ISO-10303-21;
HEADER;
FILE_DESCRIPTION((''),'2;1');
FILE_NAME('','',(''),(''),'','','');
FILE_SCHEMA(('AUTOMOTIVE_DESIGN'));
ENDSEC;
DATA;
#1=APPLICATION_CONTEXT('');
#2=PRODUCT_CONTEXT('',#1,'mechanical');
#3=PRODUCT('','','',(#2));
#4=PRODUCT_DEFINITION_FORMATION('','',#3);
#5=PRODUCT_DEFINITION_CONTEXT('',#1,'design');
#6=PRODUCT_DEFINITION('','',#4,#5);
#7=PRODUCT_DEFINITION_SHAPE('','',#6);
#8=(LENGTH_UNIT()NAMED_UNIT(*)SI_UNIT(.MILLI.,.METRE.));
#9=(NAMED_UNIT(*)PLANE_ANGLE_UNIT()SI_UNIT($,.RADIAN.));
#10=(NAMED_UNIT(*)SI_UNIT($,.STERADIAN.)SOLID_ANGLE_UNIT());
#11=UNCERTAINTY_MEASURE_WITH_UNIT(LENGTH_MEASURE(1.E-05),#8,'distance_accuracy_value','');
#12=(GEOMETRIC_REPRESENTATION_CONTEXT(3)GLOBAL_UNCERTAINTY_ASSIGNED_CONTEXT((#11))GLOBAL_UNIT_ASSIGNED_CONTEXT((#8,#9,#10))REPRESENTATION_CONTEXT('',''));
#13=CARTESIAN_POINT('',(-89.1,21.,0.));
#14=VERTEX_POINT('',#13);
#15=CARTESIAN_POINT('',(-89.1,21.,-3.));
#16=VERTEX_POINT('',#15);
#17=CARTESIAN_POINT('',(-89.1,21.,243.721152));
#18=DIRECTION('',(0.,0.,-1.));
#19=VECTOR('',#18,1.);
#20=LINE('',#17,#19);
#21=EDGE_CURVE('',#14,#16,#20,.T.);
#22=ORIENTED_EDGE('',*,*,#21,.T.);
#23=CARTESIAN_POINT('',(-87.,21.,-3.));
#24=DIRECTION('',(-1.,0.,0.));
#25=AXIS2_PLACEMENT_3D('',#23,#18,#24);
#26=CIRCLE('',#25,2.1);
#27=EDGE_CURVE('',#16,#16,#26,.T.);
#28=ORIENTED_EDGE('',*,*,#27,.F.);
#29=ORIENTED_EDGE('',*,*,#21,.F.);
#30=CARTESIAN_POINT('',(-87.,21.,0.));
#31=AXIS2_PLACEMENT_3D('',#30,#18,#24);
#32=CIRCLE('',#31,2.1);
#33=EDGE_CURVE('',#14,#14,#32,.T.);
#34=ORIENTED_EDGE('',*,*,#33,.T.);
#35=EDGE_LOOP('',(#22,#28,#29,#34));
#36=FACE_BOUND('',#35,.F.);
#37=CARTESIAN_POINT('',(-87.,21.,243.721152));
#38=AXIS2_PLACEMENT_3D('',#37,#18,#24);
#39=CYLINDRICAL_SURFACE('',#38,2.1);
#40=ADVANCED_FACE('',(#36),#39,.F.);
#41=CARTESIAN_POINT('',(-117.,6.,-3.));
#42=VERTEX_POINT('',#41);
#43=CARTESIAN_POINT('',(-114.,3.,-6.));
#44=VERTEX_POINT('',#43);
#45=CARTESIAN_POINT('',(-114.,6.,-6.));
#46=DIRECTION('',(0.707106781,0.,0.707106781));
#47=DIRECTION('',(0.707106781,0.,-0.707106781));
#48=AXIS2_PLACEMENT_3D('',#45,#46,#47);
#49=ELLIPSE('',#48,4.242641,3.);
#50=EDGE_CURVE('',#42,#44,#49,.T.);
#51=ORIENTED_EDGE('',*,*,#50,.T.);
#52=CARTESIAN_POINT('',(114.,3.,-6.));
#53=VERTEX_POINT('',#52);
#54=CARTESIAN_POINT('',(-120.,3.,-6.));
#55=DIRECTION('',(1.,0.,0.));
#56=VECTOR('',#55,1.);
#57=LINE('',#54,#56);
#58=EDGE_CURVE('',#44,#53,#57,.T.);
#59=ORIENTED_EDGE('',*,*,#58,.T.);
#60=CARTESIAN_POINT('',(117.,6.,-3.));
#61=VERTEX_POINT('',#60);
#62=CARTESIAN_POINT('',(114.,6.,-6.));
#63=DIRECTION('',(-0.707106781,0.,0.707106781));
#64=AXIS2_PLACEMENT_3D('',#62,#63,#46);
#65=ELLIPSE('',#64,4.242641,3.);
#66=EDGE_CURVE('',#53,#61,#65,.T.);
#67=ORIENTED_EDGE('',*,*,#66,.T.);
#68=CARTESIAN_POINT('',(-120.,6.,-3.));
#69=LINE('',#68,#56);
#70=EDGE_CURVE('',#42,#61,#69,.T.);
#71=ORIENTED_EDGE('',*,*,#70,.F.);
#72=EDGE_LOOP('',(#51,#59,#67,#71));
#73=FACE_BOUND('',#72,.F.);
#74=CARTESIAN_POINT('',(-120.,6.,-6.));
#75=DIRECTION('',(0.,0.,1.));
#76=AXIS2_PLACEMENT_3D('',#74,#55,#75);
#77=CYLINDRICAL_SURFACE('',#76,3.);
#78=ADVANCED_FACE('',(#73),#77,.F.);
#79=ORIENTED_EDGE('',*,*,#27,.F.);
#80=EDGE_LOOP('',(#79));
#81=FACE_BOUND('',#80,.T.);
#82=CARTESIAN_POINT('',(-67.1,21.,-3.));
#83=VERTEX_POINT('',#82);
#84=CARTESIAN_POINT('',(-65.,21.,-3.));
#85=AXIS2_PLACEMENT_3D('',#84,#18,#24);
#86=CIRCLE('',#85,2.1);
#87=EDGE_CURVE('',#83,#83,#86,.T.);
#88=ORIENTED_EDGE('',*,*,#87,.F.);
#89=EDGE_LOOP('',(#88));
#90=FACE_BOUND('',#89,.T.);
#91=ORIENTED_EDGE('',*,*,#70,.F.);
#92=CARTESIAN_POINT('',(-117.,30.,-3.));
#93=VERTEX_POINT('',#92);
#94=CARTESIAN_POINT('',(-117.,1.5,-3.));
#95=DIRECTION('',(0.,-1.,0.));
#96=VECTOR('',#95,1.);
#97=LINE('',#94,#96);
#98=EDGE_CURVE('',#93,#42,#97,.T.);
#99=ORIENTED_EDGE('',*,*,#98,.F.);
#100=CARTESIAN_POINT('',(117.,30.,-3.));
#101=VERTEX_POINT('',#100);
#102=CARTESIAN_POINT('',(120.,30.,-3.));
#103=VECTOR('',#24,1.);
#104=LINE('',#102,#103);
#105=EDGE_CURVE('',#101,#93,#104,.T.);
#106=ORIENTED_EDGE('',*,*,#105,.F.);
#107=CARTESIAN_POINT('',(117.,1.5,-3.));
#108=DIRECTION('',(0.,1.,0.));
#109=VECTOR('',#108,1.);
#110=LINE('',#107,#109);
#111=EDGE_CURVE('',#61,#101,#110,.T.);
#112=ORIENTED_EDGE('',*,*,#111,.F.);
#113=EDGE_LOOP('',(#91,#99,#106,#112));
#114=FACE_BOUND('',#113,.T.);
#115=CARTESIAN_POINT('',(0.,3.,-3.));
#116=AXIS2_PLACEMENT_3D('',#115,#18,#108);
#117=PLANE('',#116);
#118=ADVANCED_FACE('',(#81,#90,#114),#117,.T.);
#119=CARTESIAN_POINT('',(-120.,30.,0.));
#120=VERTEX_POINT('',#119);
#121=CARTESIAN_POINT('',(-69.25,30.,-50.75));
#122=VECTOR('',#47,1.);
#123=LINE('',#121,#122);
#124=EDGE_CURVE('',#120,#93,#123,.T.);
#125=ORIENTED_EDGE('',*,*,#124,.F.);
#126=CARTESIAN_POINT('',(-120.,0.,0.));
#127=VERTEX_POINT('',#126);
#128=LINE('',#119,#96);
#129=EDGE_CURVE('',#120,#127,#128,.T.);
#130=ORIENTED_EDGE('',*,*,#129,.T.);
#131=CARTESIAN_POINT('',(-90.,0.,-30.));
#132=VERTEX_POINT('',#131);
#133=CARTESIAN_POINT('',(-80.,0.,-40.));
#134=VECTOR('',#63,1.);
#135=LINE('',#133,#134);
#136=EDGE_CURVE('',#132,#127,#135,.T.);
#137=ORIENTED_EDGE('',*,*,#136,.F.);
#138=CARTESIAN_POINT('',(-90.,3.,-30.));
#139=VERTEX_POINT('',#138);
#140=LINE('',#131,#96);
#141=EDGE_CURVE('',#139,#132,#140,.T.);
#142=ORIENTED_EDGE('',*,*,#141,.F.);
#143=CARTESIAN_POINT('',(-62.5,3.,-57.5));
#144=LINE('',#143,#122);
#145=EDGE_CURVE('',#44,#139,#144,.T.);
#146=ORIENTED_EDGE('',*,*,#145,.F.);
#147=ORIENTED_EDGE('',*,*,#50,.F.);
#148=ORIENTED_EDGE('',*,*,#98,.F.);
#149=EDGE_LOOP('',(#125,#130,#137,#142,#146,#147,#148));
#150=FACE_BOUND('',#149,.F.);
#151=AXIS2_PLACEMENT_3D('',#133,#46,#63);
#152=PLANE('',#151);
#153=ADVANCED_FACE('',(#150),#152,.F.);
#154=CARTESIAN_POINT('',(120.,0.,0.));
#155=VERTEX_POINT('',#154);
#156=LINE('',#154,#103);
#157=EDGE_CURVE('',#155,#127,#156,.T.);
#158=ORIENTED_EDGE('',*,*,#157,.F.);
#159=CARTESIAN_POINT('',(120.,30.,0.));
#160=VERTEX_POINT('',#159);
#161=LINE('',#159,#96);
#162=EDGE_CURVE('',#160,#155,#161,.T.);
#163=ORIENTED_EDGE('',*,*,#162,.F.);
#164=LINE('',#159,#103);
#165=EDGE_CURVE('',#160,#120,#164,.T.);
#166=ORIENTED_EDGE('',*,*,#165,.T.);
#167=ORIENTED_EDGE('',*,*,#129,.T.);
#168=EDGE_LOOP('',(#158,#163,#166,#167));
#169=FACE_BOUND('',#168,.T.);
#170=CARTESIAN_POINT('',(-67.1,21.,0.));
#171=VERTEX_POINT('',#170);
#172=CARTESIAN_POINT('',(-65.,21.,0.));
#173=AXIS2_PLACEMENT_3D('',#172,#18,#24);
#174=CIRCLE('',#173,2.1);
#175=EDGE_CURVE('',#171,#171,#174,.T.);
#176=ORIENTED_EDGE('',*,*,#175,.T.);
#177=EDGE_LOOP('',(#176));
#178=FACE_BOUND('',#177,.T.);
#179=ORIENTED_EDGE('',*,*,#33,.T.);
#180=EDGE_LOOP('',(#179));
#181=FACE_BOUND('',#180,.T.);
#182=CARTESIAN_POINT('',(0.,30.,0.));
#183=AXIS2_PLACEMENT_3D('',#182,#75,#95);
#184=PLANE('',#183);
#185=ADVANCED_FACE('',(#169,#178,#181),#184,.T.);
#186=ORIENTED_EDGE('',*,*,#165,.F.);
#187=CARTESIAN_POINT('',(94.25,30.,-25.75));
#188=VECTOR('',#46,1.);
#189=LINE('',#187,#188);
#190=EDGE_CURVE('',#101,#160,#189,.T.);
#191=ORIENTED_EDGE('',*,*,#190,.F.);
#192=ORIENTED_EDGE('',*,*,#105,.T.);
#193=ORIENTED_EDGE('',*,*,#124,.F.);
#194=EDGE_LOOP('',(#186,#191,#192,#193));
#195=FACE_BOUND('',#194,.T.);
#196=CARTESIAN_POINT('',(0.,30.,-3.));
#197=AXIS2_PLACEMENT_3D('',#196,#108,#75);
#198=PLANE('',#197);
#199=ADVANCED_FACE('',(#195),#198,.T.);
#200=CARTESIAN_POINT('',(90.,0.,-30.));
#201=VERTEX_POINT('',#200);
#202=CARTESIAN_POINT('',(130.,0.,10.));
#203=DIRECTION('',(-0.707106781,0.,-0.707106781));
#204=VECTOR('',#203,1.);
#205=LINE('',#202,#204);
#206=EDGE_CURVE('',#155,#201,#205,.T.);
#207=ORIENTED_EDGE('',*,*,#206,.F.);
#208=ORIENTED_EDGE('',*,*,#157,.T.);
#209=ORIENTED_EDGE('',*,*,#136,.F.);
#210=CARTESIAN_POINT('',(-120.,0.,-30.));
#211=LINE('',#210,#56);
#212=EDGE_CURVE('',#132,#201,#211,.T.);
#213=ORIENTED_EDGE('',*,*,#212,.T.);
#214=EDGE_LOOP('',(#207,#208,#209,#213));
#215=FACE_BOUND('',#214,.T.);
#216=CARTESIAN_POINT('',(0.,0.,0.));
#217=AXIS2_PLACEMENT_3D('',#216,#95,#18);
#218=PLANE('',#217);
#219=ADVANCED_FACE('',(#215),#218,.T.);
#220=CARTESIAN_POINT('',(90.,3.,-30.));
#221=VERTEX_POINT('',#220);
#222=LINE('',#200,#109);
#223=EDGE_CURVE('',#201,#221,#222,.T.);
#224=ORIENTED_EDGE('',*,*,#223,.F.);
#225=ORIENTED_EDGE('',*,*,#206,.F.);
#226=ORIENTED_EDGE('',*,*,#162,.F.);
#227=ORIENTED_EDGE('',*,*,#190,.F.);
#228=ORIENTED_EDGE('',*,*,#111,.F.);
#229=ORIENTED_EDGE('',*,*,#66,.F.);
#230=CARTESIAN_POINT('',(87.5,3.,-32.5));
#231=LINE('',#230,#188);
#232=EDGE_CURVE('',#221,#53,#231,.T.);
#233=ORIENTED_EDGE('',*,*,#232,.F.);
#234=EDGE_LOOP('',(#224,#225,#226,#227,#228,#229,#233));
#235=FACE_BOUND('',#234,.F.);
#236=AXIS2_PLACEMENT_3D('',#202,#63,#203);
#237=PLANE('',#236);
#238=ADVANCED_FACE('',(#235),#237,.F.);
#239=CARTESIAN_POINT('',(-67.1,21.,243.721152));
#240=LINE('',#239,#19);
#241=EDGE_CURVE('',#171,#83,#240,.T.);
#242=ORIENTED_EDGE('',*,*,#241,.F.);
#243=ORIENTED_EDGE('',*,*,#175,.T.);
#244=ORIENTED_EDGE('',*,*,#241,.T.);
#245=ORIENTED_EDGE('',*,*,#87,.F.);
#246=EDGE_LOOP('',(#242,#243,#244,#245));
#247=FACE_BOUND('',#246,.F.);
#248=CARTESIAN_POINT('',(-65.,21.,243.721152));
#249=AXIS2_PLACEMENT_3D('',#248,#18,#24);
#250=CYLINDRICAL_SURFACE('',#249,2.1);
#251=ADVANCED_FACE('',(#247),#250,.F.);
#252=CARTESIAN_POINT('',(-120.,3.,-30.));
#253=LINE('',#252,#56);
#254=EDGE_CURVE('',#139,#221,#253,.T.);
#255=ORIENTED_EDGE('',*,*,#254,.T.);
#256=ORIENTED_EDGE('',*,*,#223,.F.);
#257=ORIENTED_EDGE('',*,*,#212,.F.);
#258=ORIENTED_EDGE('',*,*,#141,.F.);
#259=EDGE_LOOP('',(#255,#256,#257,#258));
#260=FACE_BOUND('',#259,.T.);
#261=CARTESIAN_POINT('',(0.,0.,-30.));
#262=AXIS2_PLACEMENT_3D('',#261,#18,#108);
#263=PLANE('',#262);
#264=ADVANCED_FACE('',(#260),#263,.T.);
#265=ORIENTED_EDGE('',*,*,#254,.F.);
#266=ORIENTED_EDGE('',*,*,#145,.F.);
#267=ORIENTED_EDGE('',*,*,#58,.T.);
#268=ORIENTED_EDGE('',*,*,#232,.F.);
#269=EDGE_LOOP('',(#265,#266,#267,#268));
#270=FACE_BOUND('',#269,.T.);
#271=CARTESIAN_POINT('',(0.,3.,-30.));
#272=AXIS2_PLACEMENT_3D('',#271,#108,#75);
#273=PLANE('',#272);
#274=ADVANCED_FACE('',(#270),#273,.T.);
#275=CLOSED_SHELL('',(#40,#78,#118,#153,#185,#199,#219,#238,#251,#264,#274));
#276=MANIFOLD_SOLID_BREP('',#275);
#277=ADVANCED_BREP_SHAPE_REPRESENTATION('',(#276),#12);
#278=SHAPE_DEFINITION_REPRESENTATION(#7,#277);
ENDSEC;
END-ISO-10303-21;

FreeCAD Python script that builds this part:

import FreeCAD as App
import Part
import Sketcher


def edges_at(feature, points):
    """Names of the edges that pass closest to the given points."""
    edges = feature.Shape.Edges
    near = lambda p: min(range(len(edges)), key=lambda i: edges[i].distToShape(Part.Vertex(*p))[0])
    return sorted({f"Edge{near(p) + 1}" for p in points})


def add_polygon(sketch, points):
    """Adds a closed chain of lines whose ends are joined by coincident constraints."""
    first, n = sketch.GeometryCount, len(points)
    for a, b in zip(points, points[1:] + points[:1]):
        sketch.addGeometry(Part.LineSegment(App.Vector(*a, 0), App.Vector(*b, 0)), False)
    for i in range(n):
        sketch.addConstraint(Sketcher.Constraint("Coincident", first + i, 2, first + (i + 1) % n, 1))

doc = App.newDocument("Part")
params = doc.addObject("Spreadsheet::Sheet", "Params")
for row, (alias, value) in enumerate([
    ("sketch1_width", "3 mm"),
    ("sketch1_width2", "27 mm"),
    ("pad1_length", "120 mm"),
    ("pad1_length2", "120 mm"),
    ("fillet_radius", "3 mm"),
    ("sketch2_width", "50 mm"),
    ("sketch3_diameter", "4.2 mm"),
    ("hole_diameter", "4.2 mm"),
], start=1):
    params.set(f"A{row}", alias)
    params.set(f"B{row}", "=" + value)
    params.setAlias(f"B{row}", alias)

body = doc.addObject("PartDesign::Body", "Body")

sketch1 = body.newObject("Sketcher::SketchObject", "Sketch")
sketch1.AttachmentSupport = (doc.getObject("YZ_Plane"), [""])
sketch1.MapMode = "FlatFace"
add_polygon(sketch1, [(0, 0), (0, -30), (3, -30), (3, -3), (30, -3), (30, 0)])
sketch1.addConstraint(Sketcher.Constraint("Vertical", 0))
sketch1.addConstraint(Sketcher.Constraint("Horizontal", 1))
sketch1.addConstraint(Sketcher.Constraint("Vertical", 2))
sketch1.addConstraint(Sketcher.Constraint("Horizontal", 3))
sketch1.addConstraint(Sketcher.Constraint("Vertical", 4))
sketch1.addConstraint(Sketcher.Constraint("Horizontal", 5))
sketch1.addConstraint(Sketcher.Constraint("Coincident", 5, 2, -1, 1))
sketch1.addConstraint(Sketcher.Constraint("Equal", 5, 0))
sketch1.addConstraint(Sketcher.Constraint("Equal", 3, 2))
sketch1.addConstraint(Sketcher.Constraint("DistanceX", 1, 1, 1, 2, 3.0))
sketch1.addConstraint(Sketcher.Constraint("DistanceX", 3, 1, 3, 2, 27.0))
sketch1.setExpression("Constraints[15]", "Params.sketch1_width")
sketch1.setExpression("Constraints[16]", "Params.sketch1_width2")
pad1 = body.newObject("PartDesign::Pad", "Pad")
pad1.Profile = sketch1
pad1.Type = "TwoLengths"
pad1.setExpression("Length", "Params.pad1_length")
pad1.setExpression("Length2", "Params.pad1_length2")
doc.recompute()

fillet = body.newObject("PartDesign::Fillet", "Fillet")
fillet.Base = (pad1, edges_at(pad1, [(0, 3, -3)]))
fillet.setExpression("Radius", "Params.fillet_radius")

sketch2 = body.newObject("Sketcher::SketchObject", "Sketch001")
sketch2.AttachmentSupport = (doc.getObject("XZ_Plane"), [""])
sketch2.MapMode = "FlatFace"
add_polygon(sketch2, [(-80, -40), (-130, 10), (-130, -40)])
add_polygon(sketch2, [(130, -40), (130, 10), (80, -40)])
sketch2.addConstraint(Sketcher.Constraint("Vertical", 1))
sketch2.addConstraint(Sketcher.Constraint("Horizontal", 2))
sketch2.addConstraint(Sketcher.Constraint("Vertical", 3))
sketch2.addConstraint(Sketcher.Constraint("Horizontal", 5))
sketch2.addConstraint(Sketcher.Constraint("Symmetric", 0, 2, 3, 2, -2))
sketch2.addConstraint(Sketcher.Constraint("Symmetric", 2, 2, 4, 2, -2))
sketch2.addConstraint(Sketcher.Constraint("Perpendicular", 0, 4))
sketch2.addConstraint(Sketcher.Constraint("DistanceX", 2, 1, 2, 2, 50.0))
sketch2.addConstraint(Sketcher.Constraint("DistanceX", 0, 2, -1, 1, 130.0))
sketch2.addConstraint(Sketcher.Constraint("DistanceY", -1, 1, 0, 2, 10.0))
sketch2.setExpression("Constraints[13]", "Params.sketch2_width")
pocket1 = body.newObject("PartDesign::Pocket", "Pocket")
pocket1.Profile = sketch2
pocket1.Type = "ThroughAll"

sketch3 = body.newObject("Sketcher::SketchObject", "Sketch002")
sketch3.AttachmentSupport = (doc.getObject("XY_Plane"), [""])
sketch3.MapMode = "FlatFace"
sketch3.addGeometry(Part.Circle(App.Vector(-87, 21, 0), App.Vector(0, 0, 1), 2.1), False)
sketch3.addGeometry(Part.Circle(App.Vector(-65, 21, 0), App.Vector(0, 0, 1), 2.1), False)
sketch3.addConstraint(Sketcher.Constraint("Equal", 0, 1))
sketch3.addConstraint(Sketcher.Constraint("Horizontal", 0, 3, 1, 3))
sketch3.addConstraint(Sketcher.Constraint("Diameter", 0, 4.2))
sketch3.addConstraint(Sketcher.Constraint("DistanceX", 0, 3, -1, 1, 87.0))
sketch3.addConstraint(Sketcher.Constraint("DistanceY", -1, 1, 0, 3, 21.0))
sketch3.addConstraint(Sketcher.Constraint("DistanceX", 1, 3, -1, 1, 65.0))
sketch3.setExpression("Constraints[2]", "Params.sketch3_diameter")
doc.recompute()
hole = body.newObject("PartDesign::Hole", "Hole")
hole.Profile = sketch3
hole.ThreadType = "None"
hole.setExpression("Diameter", "Params.hole_diameter")
hole.DepthType = "ThroughAll"

doc.recompute()
